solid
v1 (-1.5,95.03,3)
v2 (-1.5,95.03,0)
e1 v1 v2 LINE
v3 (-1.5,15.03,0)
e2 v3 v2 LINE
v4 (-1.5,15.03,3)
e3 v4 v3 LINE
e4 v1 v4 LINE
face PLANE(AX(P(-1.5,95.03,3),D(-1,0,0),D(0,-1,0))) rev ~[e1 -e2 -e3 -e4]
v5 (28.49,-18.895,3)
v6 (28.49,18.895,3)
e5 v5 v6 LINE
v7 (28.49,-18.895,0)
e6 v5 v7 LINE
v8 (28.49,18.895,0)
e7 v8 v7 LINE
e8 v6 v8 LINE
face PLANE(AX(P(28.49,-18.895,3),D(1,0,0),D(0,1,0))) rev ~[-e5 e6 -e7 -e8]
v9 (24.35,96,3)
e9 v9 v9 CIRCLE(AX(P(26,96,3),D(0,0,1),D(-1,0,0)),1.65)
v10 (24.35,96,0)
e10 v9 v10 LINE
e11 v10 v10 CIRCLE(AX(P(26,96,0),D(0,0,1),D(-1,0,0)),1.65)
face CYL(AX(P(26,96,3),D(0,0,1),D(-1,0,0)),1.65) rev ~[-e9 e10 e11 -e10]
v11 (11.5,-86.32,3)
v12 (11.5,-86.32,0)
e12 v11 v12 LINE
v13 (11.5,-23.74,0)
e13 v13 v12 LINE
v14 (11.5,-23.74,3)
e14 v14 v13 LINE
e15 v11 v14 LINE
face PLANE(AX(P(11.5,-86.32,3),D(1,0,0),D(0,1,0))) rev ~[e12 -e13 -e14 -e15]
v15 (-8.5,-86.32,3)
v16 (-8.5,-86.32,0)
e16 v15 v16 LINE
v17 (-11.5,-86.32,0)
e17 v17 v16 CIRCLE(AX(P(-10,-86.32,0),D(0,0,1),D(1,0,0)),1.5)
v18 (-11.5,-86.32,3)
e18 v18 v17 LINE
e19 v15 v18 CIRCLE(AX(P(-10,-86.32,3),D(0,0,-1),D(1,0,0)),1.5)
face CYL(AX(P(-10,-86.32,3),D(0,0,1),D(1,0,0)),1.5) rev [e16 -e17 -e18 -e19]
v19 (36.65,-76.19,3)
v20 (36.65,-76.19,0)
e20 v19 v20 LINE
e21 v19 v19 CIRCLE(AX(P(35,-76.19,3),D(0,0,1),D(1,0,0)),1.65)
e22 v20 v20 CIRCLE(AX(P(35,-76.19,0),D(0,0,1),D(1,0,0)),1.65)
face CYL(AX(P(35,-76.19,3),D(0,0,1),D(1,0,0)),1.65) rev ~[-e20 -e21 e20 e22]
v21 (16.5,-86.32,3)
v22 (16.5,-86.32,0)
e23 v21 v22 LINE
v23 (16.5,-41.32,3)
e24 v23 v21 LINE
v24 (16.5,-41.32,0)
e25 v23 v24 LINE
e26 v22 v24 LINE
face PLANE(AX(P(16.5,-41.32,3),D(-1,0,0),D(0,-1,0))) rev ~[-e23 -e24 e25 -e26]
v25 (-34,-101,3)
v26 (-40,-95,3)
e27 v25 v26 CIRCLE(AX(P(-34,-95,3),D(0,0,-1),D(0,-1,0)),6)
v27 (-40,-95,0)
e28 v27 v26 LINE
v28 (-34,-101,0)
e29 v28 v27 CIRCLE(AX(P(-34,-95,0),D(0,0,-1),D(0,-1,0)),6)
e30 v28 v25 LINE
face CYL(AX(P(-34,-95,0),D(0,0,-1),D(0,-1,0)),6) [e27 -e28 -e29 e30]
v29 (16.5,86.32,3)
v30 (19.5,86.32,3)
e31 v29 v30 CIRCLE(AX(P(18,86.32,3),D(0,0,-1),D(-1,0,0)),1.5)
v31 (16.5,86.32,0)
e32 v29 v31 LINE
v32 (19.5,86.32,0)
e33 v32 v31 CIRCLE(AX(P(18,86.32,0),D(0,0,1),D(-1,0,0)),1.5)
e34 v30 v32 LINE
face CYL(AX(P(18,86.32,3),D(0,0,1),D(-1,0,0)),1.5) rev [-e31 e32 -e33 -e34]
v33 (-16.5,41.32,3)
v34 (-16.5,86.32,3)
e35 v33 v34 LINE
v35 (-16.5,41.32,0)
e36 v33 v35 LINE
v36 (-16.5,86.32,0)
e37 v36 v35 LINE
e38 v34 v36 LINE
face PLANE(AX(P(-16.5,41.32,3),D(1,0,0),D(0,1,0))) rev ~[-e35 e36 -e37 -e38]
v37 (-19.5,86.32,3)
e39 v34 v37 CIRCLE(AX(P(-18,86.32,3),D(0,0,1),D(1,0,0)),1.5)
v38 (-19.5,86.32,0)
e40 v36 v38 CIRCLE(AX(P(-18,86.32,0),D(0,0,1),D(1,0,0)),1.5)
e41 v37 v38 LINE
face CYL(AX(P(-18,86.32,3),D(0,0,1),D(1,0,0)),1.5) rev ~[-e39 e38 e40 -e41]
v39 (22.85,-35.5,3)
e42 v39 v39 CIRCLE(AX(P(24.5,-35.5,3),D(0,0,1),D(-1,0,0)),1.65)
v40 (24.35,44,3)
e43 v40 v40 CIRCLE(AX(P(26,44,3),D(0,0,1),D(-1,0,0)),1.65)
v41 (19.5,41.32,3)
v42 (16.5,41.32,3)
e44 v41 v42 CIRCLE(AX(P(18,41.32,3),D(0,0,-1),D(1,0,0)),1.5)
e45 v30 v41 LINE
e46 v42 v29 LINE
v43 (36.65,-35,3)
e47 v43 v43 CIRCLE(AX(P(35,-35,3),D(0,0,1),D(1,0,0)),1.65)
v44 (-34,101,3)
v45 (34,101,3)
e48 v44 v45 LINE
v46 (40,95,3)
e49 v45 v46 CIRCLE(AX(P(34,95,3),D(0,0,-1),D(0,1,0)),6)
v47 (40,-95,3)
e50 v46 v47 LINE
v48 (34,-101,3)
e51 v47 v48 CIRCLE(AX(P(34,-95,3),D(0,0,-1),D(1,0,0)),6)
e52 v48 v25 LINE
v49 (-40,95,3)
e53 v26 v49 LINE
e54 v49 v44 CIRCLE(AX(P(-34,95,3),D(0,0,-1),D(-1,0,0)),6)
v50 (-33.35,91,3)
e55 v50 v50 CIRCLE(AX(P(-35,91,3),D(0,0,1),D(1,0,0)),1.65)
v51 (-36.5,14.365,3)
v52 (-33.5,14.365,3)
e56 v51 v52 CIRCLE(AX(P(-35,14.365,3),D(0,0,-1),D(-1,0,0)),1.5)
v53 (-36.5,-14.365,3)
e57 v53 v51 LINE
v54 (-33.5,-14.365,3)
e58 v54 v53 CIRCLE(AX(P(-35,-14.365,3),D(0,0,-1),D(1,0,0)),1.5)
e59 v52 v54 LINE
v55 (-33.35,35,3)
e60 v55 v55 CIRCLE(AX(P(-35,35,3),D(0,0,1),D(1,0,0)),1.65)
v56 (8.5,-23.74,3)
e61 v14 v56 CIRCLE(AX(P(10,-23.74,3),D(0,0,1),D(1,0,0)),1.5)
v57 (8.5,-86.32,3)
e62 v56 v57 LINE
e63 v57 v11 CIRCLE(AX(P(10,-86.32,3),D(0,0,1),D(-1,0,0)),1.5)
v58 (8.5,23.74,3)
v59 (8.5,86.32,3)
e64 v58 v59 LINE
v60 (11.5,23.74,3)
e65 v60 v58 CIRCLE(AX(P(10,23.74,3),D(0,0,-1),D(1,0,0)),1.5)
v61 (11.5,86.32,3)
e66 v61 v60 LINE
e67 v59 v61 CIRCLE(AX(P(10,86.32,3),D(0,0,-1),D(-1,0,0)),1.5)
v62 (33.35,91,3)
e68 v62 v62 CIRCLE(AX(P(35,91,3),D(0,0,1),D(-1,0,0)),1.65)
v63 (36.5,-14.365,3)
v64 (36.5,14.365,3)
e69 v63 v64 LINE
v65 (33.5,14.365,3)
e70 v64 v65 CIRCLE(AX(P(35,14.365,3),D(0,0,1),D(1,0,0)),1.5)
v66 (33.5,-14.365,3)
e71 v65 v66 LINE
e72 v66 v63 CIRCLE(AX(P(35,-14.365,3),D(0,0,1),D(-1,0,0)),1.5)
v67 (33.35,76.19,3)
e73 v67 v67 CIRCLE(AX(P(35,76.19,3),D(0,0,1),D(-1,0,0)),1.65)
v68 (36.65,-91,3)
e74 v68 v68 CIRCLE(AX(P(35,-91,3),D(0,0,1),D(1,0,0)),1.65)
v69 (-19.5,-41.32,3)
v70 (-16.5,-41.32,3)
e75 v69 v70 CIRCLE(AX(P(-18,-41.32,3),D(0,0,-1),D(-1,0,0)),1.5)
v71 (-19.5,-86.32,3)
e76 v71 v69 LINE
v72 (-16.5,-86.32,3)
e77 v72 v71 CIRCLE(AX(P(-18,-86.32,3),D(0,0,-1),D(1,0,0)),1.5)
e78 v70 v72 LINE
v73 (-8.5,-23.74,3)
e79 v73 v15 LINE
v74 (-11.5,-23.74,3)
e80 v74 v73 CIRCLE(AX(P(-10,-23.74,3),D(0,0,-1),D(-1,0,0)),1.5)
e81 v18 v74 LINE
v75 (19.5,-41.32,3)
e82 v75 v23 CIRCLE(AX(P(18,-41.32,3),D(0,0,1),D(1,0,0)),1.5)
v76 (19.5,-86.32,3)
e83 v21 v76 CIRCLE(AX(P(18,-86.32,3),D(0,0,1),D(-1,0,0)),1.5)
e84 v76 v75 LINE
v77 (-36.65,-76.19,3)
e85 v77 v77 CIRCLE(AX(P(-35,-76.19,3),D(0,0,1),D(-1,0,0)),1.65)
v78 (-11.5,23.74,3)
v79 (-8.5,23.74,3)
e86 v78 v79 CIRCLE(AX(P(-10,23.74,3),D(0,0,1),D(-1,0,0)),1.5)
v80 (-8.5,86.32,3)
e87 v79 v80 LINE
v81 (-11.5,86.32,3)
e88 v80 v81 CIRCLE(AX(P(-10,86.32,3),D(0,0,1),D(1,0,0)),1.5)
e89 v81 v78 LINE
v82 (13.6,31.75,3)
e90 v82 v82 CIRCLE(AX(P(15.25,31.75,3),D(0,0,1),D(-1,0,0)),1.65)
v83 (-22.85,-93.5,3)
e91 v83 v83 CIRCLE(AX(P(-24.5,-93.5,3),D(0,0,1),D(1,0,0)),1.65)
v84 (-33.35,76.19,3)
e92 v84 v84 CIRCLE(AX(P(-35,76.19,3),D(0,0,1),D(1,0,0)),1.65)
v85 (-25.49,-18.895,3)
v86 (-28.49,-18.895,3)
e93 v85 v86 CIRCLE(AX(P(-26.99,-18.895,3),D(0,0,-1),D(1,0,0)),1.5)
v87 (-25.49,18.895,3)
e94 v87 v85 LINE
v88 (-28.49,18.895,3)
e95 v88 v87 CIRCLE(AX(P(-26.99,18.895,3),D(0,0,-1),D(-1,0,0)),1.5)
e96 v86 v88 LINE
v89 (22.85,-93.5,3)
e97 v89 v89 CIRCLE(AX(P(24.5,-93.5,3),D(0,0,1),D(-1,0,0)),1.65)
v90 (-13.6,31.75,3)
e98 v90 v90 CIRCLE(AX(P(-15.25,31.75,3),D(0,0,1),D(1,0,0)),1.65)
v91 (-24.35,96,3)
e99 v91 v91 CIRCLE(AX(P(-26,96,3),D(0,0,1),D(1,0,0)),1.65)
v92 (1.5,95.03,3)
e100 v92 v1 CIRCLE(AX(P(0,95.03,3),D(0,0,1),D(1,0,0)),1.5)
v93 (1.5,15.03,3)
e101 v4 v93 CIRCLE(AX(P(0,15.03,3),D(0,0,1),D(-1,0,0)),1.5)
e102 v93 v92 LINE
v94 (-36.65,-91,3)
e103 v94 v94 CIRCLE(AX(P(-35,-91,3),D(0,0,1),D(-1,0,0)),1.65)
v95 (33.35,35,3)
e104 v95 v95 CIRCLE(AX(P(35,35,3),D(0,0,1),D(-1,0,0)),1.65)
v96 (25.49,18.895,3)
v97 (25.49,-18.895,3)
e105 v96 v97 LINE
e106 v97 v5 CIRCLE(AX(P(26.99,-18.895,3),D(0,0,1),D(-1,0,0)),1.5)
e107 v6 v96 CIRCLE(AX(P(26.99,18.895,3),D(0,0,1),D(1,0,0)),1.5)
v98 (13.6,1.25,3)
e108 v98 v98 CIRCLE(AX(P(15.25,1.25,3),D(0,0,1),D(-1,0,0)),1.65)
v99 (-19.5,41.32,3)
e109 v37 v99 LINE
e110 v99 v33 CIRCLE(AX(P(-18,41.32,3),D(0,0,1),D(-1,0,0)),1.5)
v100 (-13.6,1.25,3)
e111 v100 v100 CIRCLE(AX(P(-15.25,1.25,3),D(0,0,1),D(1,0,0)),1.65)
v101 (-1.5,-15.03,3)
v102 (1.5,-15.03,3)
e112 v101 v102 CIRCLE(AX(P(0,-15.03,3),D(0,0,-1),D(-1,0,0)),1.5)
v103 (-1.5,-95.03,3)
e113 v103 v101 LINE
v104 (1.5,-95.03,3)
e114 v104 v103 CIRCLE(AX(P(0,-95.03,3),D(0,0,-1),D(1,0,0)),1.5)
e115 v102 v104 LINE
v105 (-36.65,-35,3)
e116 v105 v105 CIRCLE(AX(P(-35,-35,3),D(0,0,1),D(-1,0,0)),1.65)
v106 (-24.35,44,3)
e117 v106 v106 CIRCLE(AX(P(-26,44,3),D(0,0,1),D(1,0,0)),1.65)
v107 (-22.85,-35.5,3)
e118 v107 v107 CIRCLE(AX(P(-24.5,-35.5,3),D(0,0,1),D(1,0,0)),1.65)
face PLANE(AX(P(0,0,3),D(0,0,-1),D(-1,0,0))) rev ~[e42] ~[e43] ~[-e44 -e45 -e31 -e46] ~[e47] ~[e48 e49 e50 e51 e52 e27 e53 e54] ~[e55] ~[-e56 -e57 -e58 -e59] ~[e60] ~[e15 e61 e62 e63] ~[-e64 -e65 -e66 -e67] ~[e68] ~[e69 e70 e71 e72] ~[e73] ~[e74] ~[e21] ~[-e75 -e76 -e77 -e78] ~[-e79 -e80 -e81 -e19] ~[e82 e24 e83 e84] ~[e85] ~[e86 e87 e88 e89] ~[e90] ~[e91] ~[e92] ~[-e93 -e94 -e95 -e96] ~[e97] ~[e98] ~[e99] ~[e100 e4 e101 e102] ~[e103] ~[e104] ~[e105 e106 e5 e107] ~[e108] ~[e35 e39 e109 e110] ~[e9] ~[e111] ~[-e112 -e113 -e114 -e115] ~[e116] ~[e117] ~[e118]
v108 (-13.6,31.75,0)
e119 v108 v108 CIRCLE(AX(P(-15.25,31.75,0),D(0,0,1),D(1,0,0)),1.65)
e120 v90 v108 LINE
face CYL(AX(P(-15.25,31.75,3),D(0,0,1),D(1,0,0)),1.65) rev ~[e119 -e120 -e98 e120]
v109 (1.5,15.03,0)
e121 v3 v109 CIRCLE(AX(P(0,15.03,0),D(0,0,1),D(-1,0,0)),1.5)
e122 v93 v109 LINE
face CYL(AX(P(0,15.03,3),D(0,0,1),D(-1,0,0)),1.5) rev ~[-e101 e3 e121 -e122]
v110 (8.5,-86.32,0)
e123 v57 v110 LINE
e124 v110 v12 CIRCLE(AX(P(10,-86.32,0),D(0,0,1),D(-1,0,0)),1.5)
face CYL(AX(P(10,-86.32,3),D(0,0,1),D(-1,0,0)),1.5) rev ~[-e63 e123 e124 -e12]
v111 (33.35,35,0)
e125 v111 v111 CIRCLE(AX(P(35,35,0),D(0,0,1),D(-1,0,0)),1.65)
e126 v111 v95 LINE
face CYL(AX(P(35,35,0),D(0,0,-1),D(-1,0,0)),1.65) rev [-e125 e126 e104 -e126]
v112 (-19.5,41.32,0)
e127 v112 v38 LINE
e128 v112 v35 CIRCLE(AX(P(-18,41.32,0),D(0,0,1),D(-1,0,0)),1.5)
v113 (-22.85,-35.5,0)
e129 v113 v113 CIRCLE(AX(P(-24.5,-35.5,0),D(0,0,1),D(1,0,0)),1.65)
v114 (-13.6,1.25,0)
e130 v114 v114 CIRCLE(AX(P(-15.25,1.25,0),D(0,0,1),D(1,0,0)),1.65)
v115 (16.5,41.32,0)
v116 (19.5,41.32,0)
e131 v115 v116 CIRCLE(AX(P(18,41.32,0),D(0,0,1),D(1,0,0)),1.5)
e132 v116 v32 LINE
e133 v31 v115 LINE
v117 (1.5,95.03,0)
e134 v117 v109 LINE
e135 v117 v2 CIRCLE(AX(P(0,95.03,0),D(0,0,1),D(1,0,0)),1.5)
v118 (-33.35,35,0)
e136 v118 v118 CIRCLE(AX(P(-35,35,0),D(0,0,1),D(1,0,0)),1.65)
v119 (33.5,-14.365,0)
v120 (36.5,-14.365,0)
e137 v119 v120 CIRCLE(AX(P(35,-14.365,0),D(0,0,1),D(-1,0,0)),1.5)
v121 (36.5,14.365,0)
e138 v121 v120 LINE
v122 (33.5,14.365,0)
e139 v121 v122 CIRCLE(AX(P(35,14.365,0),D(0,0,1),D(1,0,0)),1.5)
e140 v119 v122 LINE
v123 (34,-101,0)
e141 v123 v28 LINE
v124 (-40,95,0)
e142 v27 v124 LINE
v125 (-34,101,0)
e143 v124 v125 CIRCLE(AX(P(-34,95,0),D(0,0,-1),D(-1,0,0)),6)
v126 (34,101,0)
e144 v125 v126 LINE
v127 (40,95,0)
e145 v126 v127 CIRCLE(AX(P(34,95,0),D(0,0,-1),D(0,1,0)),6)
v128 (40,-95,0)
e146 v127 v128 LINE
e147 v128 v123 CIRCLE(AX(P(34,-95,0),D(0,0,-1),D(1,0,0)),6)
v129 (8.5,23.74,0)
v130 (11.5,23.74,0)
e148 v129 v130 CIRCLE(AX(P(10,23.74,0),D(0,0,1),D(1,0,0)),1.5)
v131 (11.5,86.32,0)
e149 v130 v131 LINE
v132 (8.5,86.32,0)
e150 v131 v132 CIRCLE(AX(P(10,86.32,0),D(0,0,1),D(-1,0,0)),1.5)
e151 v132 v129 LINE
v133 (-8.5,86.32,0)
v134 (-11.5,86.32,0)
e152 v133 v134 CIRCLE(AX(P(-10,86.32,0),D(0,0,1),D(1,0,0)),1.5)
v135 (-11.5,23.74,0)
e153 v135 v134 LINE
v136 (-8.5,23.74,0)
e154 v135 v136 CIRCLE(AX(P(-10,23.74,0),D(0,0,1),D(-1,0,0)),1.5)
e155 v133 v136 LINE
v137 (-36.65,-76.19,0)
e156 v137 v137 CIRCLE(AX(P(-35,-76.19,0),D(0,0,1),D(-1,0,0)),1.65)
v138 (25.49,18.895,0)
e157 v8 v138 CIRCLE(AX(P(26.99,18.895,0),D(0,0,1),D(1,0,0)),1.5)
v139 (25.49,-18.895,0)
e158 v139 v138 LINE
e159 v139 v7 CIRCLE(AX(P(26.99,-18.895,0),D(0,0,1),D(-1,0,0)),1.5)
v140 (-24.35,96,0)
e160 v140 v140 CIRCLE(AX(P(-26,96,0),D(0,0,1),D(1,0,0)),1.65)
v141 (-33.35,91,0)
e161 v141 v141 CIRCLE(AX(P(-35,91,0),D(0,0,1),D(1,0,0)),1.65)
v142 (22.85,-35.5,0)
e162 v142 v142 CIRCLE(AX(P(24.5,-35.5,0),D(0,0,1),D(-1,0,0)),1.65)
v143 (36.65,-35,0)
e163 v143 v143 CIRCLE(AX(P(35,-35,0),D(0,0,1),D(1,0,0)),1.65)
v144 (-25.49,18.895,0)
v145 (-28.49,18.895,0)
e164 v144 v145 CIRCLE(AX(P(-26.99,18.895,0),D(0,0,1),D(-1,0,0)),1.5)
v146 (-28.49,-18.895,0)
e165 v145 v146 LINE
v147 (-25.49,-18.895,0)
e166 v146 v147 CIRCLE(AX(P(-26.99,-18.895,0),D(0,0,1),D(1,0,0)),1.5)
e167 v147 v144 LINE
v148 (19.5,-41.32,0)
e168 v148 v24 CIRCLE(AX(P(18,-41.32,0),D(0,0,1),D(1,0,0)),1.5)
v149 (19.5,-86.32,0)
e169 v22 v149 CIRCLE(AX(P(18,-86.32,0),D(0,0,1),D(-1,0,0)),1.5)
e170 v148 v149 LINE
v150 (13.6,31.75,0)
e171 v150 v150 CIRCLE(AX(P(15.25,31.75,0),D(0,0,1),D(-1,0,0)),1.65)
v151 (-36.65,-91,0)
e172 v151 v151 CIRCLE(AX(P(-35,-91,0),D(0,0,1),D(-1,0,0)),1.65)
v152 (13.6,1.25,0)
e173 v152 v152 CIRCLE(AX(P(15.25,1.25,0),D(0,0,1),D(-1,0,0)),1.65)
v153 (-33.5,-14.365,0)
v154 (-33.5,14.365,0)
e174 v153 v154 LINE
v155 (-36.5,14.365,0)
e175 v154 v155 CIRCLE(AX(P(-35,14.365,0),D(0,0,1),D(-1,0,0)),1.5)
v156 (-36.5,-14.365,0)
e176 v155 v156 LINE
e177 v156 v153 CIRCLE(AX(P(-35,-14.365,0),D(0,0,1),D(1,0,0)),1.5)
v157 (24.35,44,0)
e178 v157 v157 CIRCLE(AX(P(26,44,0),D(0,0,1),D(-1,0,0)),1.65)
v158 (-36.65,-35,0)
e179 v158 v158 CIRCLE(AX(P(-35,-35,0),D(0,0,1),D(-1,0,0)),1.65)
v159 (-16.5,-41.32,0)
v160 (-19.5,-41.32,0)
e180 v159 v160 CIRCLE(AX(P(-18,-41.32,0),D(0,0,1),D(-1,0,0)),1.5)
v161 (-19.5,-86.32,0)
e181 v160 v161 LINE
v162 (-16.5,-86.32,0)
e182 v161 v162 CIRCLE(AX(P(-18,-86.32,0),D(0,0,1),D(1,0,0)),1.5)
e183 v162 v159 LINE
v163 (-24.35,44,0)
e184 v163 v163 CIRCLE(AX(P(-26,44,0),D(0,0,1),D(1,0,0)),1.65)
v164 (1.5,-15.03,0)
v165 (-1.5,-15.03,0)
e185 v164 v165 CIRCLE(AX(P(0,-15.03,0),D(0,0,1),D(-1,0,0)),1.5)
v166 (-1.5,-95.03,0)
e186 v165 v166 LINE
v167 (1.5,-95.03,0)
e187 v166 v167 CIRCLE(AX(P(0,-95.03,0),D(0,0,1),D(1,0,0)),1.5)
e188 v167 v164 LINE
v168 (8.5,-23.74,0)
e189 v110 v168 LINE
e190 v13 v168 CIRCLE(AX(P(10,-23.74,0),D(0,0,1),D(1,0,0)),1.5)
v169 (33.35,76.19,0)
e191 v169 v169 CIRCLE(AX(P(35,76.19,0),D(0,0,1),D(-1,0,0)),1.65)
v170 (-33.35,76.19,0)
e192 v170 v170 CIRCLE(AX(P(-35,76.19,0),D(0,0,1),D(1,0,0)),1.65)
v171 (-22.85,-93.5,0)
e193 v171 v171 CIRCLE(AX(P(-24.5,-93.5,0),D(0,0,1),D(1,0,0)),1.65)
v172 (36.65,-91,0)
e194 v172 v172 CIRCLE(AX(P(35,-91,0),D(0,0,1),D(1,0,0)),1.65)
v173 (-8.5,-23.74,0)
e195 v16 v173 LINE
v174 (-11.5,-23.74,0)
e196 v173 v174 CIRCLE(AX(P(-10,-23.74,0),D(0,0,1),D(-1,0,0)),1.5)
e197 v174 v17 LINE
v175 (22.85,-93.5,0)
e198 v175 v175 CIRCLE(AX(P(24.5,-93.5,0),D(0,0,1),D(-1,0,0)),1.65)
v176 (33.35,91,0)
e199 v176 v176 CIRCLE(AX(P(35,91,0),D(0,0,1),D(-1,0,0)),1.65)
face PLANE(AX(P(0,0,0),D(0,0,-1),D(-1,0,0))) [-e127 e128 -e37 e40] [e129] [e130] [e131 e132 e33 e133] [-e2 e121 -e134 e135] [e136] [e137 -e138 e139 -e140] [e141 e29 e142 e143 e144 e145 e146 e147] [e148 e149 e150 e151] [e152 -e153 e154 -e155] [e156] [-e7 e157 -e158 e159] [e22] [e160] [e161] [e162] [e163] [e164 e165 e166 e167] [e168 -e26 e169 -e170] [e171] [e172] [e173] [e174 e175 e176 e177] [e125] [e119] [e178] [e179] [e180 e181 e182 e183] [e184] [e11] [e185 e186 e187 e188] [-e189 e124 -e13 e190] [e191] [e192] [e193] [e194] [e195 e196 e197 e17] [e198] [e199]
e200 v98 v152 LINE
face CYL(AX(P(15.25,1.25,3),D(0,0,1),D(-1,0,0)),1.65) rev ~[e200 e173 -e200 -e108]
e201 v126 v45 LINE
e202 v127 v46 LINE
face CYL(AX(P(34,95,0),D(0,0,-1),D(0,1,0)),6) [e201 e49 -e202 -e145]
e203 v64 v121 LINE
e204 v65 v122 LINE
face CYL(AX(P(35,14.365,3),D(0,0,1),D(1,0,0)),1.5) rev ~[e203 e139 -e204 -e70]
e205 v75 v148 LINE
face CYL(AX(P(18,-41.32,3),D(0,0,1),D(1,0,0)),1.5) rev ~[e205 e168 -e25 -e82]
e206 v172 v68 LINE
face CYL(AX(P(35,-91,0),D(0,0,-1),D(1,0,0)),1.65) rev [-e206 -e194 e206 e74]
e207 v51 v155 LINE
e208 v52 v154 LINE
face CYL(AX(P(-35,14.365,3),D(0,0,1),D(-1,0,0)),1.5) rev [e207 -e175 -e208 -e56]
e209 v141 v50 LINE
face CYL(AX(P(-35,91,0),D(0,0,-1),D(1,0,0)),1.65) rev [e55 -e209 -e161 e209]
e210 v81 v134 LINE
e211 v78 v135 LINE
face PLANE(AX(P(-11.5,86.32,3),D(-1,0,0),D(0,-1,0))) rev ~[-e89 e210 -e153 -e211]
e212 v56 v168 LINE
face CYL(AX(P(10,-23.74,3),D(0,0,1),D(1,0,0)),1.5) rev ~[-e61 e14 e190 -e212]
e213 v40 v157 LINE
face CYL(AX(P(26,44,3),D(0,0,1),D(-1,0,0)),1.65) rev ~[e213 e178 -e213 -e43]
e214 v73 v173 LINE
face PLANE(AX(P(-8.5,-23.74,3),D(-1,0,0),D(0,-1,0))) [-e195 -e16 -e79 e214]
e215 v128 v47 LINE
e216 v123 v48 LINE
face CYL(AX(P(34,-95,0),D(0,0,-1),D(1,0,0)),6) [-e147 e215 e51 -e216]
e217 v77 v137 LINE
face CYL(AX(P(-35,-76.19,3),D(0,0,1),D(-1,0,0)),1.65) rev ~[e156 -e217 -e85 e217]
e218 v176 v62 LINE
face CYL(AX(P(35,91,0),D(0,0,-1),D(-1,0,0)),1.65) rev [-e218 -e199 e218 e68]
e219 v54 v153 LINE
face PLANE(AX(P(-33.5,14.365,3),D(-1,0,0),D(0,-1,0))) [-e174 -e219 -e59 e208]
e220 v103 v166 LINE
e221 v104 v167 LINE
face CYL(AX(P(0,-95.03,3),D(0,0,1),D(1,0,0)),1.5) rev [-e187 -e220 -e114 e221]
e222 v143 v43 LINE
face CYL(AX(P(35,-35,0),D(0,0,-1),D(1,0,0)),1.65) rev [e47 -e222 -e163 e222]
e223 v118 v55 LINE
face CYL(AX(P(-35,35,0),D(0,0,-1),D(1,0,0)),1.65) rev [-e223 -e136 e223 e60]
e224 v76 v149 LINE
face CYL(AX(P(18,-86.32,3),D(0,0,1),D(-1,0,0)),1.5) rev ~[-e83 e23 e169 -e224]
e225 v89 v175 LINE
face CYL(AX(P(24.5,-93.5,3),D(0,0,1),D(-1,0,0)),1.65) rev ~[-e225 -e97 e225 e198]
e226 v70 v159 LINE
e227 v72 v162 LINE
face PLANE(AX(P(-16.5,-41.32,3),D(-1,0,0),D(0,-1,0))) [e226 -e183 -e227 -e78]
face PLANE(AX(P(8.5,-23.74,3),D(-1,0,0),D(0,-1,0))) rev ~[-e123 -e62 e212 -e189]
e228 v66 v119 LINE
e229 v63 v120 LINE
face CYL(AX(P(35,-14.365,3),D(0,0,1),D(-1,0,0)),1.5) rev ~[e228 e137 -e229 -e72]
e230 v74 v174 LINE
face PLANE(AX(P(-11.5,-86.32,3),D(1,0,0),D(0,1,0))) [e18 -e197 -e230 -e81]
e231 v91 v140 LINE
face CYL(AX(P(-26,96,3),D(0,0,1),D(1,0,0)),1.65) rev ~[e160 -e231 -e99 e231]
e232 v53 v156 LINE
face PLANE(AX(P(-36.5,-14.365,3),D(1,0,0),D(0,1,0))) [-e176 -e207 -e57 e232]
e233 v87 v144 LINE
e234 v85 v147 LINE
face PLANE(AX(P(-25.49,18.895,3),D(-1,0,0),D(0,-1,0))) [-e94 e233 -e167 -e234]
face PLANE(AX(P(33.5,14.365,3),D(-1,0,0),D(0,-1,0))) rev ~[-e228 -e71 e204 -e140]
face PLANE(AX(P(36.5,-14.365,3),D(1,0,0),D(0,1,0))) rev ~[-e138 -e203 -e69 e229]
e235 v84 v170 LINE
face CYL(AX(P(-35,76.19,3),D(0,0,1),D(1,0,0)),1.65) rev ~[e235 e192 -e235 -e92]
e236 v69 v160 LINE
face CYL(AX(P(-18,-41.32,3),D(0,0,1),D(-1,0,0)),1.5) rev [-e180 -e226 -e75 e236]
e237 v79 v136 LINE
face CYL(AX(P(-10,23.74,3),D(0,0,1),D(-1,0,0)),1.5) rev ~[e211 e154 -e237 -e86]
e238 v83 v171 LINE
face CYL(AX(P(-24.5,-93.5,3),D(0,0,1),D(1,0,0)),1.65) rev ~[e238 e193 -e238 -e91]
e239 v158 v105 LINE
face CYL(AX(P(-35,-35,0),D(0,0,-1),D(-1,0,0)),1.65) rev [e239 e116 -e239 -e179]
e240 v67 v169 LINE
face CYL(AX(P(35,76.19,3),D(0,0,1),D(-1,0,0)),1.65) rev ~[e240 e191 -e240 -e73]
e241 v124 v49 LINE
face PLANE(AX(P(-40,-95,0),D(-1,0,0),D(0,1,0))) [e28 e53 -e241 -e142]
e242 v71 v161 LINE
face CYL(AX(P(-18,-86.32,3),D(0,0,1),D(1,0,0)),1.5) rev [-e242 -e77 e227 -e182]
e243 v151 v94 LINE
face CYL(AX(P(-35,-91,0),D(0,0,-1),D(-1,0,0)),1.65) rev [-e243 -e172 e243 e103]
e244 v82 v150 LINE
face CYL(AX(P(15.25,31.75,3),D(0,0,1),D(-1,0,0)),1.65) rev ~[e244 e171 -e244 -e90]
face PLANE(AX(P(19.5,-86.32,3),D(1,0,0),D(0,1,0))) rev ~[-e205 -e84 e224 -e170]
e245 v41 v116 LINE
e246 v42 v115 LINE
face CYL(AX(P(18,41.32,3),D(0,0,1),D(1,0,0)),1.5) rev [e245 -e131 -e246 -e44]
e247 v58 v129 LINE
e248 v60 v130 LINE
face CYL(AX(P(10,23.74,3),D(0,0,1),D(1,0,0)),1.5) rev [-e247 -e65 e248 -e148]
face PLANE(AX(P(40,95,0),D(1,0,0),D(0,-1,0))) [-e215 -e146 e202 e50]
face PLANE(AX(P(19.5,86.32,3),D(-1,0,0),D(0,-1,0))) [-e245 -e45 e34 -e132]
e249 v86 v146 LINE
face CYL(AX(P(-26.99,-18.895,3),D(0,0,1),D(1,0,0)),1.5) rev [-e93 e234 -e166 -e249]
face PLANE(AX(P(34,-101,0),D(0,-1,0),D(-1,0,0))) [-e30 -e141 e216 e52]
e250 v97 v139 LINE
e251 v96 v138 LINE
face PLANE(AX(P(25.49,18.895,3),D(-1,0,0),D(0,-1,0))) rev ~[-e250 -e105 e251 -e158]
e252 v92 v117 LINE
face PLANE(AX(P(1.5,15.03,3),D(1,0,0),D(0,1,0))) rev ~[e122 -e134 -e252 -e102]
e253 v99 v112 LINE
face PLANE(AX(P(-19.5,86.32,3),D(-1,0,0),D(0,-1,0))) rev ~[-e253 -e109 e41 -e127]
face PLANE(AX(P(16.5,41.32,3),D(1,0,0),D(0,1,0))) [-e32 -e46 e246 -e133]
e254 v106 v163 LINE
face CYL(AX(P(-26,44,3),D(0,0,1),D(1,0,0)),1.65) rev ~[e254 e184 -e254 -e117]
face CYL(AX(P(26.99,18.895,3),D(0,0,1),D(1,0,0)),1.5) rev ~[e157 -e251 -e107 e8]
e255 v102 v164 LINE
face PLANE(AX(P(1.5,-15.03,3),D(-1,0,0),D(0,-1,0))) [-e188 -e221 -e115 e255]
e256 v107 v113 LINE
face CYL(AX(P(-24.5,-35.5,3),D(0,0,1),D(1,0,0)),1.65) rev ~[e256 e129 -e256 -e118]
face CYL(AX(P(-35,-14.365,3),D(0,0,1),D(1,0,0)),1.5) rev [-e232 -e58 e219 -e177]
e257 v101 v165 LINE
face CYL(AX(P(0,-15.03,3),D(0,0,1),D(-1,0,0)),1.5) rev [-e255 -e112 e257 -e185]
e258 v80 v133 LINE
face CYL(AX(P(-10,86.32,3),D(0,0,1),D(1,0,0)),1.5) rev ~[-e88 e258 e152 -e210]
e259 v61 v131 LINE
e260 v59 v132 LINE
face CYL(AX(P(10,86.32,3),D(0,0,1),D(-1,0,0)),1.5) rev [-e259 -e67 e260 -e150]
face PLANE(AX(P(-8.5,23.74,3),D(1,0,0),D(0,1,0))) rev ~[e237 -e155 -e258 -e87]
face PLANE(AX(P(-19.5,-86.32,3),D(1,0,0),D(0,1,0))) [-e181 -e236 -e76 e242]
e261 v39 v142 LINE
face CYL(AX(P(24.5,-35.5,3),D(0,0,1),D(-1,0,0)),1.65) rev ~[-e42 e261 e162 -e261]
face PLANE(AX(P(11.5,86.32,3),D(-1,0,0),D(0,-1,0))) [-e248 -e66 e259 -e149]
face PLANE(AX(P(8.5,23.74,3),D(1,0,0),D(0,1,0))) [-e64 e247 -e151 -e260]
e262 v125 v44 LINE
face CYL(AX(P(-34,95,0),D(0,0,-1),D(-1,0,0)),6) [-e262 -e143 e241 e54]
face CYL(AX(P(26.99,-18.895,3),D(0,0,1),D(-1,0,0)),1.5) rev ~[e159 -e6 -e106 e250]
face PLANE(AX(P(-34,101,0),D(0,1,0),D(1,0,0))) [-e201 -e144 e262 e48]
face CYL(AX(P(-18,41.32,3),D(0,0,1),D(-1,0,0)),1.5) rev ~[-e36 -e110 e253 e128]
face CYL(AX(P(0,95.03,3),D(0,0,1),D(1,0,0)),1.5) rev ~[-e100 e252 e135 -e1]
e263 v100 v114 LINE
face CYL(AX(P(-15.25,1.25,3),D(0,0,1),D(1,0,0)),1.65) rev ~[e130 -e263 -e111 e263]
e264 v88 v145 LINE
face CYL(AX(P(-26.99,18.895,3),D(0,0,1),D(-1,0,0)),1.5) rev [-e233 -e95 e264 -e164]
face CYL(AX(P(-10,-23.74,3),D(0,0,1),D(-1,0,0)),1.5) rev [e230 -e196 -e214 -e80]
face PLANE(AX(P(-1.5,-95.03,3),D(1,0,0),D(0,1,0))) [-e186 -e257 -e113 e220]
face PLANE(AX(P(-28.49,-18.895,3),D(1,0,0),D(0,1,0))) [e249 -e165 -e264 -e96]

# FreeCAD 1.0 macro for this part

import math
import FreeCAD as App
import Part
import Sketcher
from FreeCAD import Vector
Q = App.Units.Quantity

doc = App.newDocument("Part")
params = doc.addObject("Spreadsheet::Sheet", "Params")
for row, (alias, value) in enumerate([
    ("sketch1_radius", "6 mm"),
    ("sketch1_diameter", "3.3 mm"),
    ("sketch1_width", "68 mm"),
    ("sketch1_height", "190 mm"),
    ("pad1_length", "3 mm"),
    ("sketch2_diameter", "3.3 mm"),
    ("sketch3_diameter", "3.3 mm"),
    ("sketch4_radius", "1.5 mm"),
    ("sketch4_height", "45 mm"),
    ("sketch4_height2", "80 mm"),
    ("sketch4_height3", "28.73 mm"),
    ("sketch4_height4", "37.79 mm"),
], start=1):
    params.set(f"A{row}", alias)
    params.set(f"B{row}", "=" + value)
    params.setAlias(f"B{row}", alias)

body = doc.addObject("PartDesign::Body", "Body")

sketch1 = body.newObject("Sketcher::SketchObject", "Sketch")
sketch1.AttachmentSupport = (doc.getObject("XY_Plane"), [""])
sketch1.MapMode = "FlatFace"
sketch1.addGeometry([
    Part.LineSegment(Vector(34, 101, 0), Vector(-34, 101, 0)),
    Part.ArcOfCircle(Part.Circle(Vector(-34, 95, 0), Vector(0, 0, 1), 6), math.radians(90), math.radians(180)),
    Part.LineSegment(Vector(-40, 95, 0), Vector(-40, -95, 0)),
    Part.ArcOfCircle(Part.Circle(Vector(-34, -95, 0), Vector(0, 0, 1), 6), math.radians(180), math.radians(270)),
    Part.LineSegment(Vector(-34, -101, 0), Vector(34, -101, 0)),
    Part.ArcOfCircle(Part.Circle(Vector(34, -95, 0), Vector(0, 0, 1), 6), math.radians(-90), math.radians(0)),
    Part.LineSegment(Vector(40, -95, 0), Vector(40, 95, 0)),
    Part.ArcOfCircle(Part.Circle(Vector(34, 95, 0), Vector(0, 0, 1), 6), math.radians(0), math.radians(90)),
    Part.Circle(Vector(35, -91, 0), Vector(0, 0, 1), 1.6),
    Part.Circle(Vector(35, -35, 0), Vector(0, 0, 1), 1.6),
    Part.Circle(Vector(-35, -91, 0), Vector(0, 0, 1), 1.6),
    Part.Circle(Vector(-35, -35, 0), Vector(0, 0, 1), 1.6),
    Part.Circle(Vector(35, 35, 0), Vector(0, 0, 1), 1.6),
    Part.Circle(Vector(35, 91, 0), Vector(0, 0, 1), 1.6),
    Part.Circle(Vector(-35, 35, 0), Vector(0, 0, 1), 1.6),
    Part.Circle(Vector(-35, 91, 0), Vector(0, 0, 1), 1.6),
], False)
sketch1.addConstraint([
    Sketcher.Constraint("Tangent", 0, 2, 1, 1),
    Sketcher.Constraint("Tangent", 1, 2, 2, 1),
    Sketcher.Constraint("Tangent", 2, 2, 3, 1),
    Sketcher.Constraint("Tangent", 3, 2, 4, 1),
    Sketcher.Constraint("Tangent", 4, 2, 5, 1),
    Sketcher.Constraint("Tangent", 5, 2, 6, 1),
    Sketcher.Constraint("Tangent", 6, 2, 7, 1),
    Sketcher.Constraint("Tangent", 7, 2, 0, 1),
    Sketcher.Constraint("Horizontal", 0),
    Sketcher.Constraint("Vertical", 2),
    Sketcher.Constraint("Horizontal", 4),
    Sketcher.Constraint("Vertical", 6),
    Sketcher.Constraint("Equal", 1, 3),
    Sketcher.Constraint("Equal", 3, 5),
    Sketcher.Constraint("Equal", 5, 7),
    Sketcher.Constraint("Equal", 8, 9),
    Sketcher.Constraint("Equal", 9, 10),
    Sketcher.Constraint("Equal", 10, 11),
    Sketcher.Constraint("Equal", 11, 12),
    Sketcher.Constraint("Equal", 12, 13),
    Sketcher.Constraint("Equal", 13, 14),
    Sketcher.Constraint("Equal", 14, 15),
    Sketcher.Constraint("Symmetric", 1, 3, 5, 3, -1, 1),
    Sketcher.Constraint("Symmetric", 11, 3, 12, 3, -1, 1),
    Sketcher.Constraint("Symmetric", 10, 3, 13, 3, -1, 1),
    Sketcher.Constraint("Symmetric", 9, 3, 14, 3, -1, 1),
    Sketcher.Constraint("Symmetric", 8, 3, 15, 3, -1, 1),
    Sketcher.Constraint("Symmetric", 8, 3, 10, 3, -2),
    Sketcher.Constraint("Symmetric", 9, 3, 11, 3, -2),
    Sketcher.Constraint("Vertical", 8, 3, 9, 3),
    Sketcher.Constraint("Radius", 1, Q("6 mm")),
    Sketcher.Constraint("Diameter", 8, Q("3.3 mm")),
    Sketcher.Constraint("DistanceX", 0, 2, 0, 1, Q("68 mm")),
    Sketcher.Constraint("DistanceY", 2, 2, 2, 1, Q("190 mm")),
    Sketcher.Constraint("DistanceX", -1, 1, 8, 3, Q("35 mm")),
    Sketcher.Constraint("DistanceY", 8, 3, -1, 1, Q("91 mm")),
    Sketcher.Constraint("DistanceY", 9, 3, -1, 1, Q("35 mm")),
])
sketch1.setExpression("Constraints[30]", "Params.sketch1_radius")
sketch1.setExpression("Constraints[31]", "Params.sketch1_diameter")
sketch1.setExpression("Constraints[32]", "Params.sketch1_width")
sketch1.setExpression("Constraints[33]", "Params.sketch1_height")
pad1 = body.newObject("PartDesign::Pad", "Pad")
pad1.Profile = sketch1
pad1.setExpression("Length", "Params.pad1_length")

sketch2 = body.newObject("Sketcher::SketchObject", "Sketch001")
sketch2.AttachmentSupport = (doc.getObject("XY_Plane"), [""])
sketch2.MapMode = "FlatFace"
sketch2.AttachmentOffset = App.Placement(Vector(0, 0, 3), App.Rotation())
sketch2.addGeometry([
    Part.Circle(Vector(-24.5, -93.5, 0), Vector(0, 0, 1), 1.6),
    Part.Circle(Vector(-24.5, -35.5, 0), Vector(0, 0, 1), 1.6),
    Part.Circle(Vector(-15.2, 1.2, 0), Vector(0, 0, 1), 1.6),
    Part.Circle(Vector(-15.2, 31.8, 0), Vector(0, 0, 1), 1.6),
    Part.Circle(Vector(-26, 44, 0), Vector(0, 0, 1), 1.6),
    Part.Circle(Vector(-26, 96, 0), Vector(0, 0, 1), 1.6),
    Part.Circle(Vector(24.5, -93.5, 0), Vector(0, 0, 1), 1.6),
    Part.Circle(Vector(24.5, -35.5, 0), Vector(0, 0, 1), 1.6),
    Part.Circle(Vector(15.2, 1.2, 0), Vector(0, 0, 1), 1.6),
    Part.Circle(Vector(15.2, 31.8, 0), Vector(0, 0, 1), 1.6),
    Part.Circle(Vector(26, 44, 0), Vector(0, 0, 1), 1.6),
    Part.Circle(Vector(26, 96, 0), Vector(0, 0, 1), 1.6),
], False)
sketch2.addConstraint([
    Sketcher.Constraint("Equal", 0, 1),
    Sketcher.Constraint("Equal", 1, 2),
    Sketcher.Constraint("Equal", 2, 3),
    Sketcher.Constraint("Equal", 3, 4),
    Sketcher.Constraint("Equal", 4, 5),
    Sketcher.Constraint("Equal", 5, 6),
    Sketcher.Constraint("Equal", 6, 7),
    Sketcher.Constraint("Equal", 7, 8),
    Sketcher.Constraint("Equal", 8, 9),
    Sketcher.Constraint("Equal", 9, 10),
    Sketcher.Constraint("Equal", 10, 11),
    Sketcher.Constraint("Symmetric", 0, 3, 6, 3, -2),
    Sketcher.Constraint("Symmetric", 1, 3, 7, 3, -2),
    Sketcher.Constraint("Symmetric", 2, 3, 8, 3, -2),
    Sketcher.Constraint("Symmetric", 3, 3, 9, 3, -2),
    Sketcher.Constraint("Symmetric", 4, 3, 10, 3, -2),
    Sketcher.Constraint("Symmetric", 5, 3, 11, 3, -2),
    Sketcher.Constraint("Vertical", 0, 3, 1, 3),
    Sketcher.Constraint("Vertical", 2, 3, 3, 3),
    Sketcher.Constraint("Vertical", 4, 3, 5, 3),
    Sketcher.Constraint("Diameter", 0, Q("3.3 mm")),
    Sketcher.Constraint("DistanceX", 4, 3, -1, 1, Q("26 mm")),
    Sketcher.Constraint("DistanceY", -1, 1, 4, 3, Q("44 mm")),
    Sketcher.Constraint("DistanceY", -1, 1, 5, 3, Q("96 mm")),
    Sketcher.Constraint("DistanceY", 0, 3, 1, 3, Q("58 mm")),
    Sketcher.Constraint("DistanceX", 0, 3, 6, 3, Q("49 mm")),
    Sketcher.Constraint("DistanceY", 0, 3, -1, 1, Q("93.5 mm")),
    Sketcher.Constraint("DistanceY", 2, 3, 3, 3, Q("30.5 mm")),
    Sketcher.Constraint("DistanceX", 2, 3, 8, 3, Q("30.5 mm")),
    Sketcher.Constraint("DistanceY", -1, 1, 2, 3, Q("1.25 mm")),
])
sketch2.setExpression("Constraints[20]", "Params.sketch2_diameter")
pocket1 = body.newObject("PartDesign::Pocket", "Pocket")
pocket1.Profile = sketch2
pocket1.Type = "ThroughAll"

sketch3 = body.newObject("Sketcher::SketchObject", "Sketch002")
sketch3.AttachmentSupport = (doc.getObject("XY_Plane"), [""])
sketch3.MapMode = "FlatFace"
sketch3.AttachmentOffset = App.Placement(Vector(0, 0, 3), App.Rotation())
sketch3.addGeometry([
    Part.Circle(Vector(-35, 76.2, 0), Vector(0, 0, 1), 1.6),
    Part.Circle(Vector(35, 76.2, 0), Vector(0, 0, 1), 1.6),
    Part.Circle(Vector(35, -76.2, 0), Vector(0, 0, 1), 1.6),
    Part.Circle(Vector(-35, -76.2, 0), Vector(0, 0, 1), 1.6),
], False)
sketch3.addConstraint([
    Sketcher.Constraint("Equal", 0, 1),
    Sketcher.Constraint("Equal", 1, 2),
    Sketcher.Constraint("Equal", 2, 3),
    Sketcher.Constraint("Symmetric", 0, 3, 2, 3, -1, 1),
    Sketcher.Constraint("Symmetric", 1, 3, 3, 3, -1, 1),
    Sketcher.Constraint("Symmetric", 0, 3, 1, 3, -2),
    Sketcher.Constraint("Diameter", 0, Q("3.3 mm")),
    Sketcher.Constraint("DistanceX", 0, 3, -1, 1, Q("35 mm")),
    Sketcher.Constraint("DistanceY", -1, 1, 0, 3, Q("76.19 mm")),
])
sketch3.setExpression("Constraints[6]", "Params.sketch3_diameter")
pocket2 = body.newObject("PartDesign::Pocket", "Pocket001")
pocket2.Profile = sketch3
pocket2.Type = "ThroughAll"

sketch4 = body.newObject("Sketcher::SketchObject", "Sketch003")
sketch4.AttachmentSupport = (doc.getObject("XY_Plane"), [""])
sketch4.MapMode = "FlatFace"
sketch4.AttachmentOffset = App.Placement(Vector(0, 0, 3), App.Rotation())
sketch4.addGeometry([
    Part.LineSegment(Vector(-33.5, -14.4, 0), Vector(-33.5, 14.4, 0)),
    Part.ArcOfCircle(Part.Circle(Vector(-35, 14.4, 0), Vector(0, 0, 1), 1.5), math.radians(0), math.radians(180)),
    Part.LineSegment(Vector(-36.5, 14.4, 0), Vector(-36.5, -14.4, 0)),
    Part.ArcOfCircle(Part.Circle(Vector(-35, -14.4, 0), Vector(0, 0, 1), 1.5), math.radians(180), math.radians(360)),
    Part.LineSegment(Vector(-25.5, -18.9, 0), Vector(-25.5, 18.9, 0)),
    Part.ArcOfCircle(Part.Circle(Vector(-27, 18.9, 0), Vector(0, 0, 1), 1.5), math.radians(0), math.radians(180)),
    Part.LineSegment(Vector(-28.5, 18.9, 0), Vector(-28.5, -18.9, 0)),
    Part.ArcOfCircle(Part.Circle(Vector(-27, -18.9, 0), Vector(0, 0, 1), 1.5), math.radians(180), math.radians(360)),
    Part.LineSegment(Vector(-16.5, -86.3, 0), Vector(-16.5, -41.3, 0)),
    Part.ArcOfCircle(Part.Circle(Vector(-18, -41.3, 0), Vector(0, 0, 1), 1.5), math.radians(0), math.radians(180)),
    Part.LineSegment(Vector(-19.5, -41.3, 0), Vector(-19.5, -86.3, 0)),
    Part.ArcOfCircle(Part.Circle(Vector(-18, -86.3, 0), Vector(0, 0, 1), 1.5), math.radians(180), math.radians(360)),
    Part.LineSegment(Vector(-8.5, -86.3, 0), Vector(-8.5, -23.7, 0)),
    Part.ArcOfCircle(Part.Circle(Vector(-10, -23.7, 0), Vector(0, 0, 1), 1.5), math.radians(0), math.radians(180)),
    Part.LineSegment(Vector(-11.5, -23.7, 0), Vector(-11.5, -86.3, 0)),
    Part.ArcOfCircle(Part.Circle(Vector(-10, -86.3, 0), Vector(0, 0, 1), 1.5), math.radians(180), math.radians(360)),
    Part.LineSegment(Vector(1.5, -95, 0), Vector(1.5, -15, 0)),
    Part.ArcOfCircle(Part.Circle(Vector(0, -15, 0), Vector(0, 0, 1), 1.5), math.radians(0), math.radians(180)),
    Part.LineSegment(Vector(-1.5, -15, 0), Vector(-1.5, -95, 0)),
    Part.ArcOfCircle(Part.Circle(Vector(0, -95, 0), Vector(0, 0, 1), 1.5), math.radians(180), math.radians(360)),
    Part.LineSegment(Vector(8.5, -23.7, 0), Vector(8.5, -86.3, 0)),
    Part.ArcOfCircle(Part.Circle(Vector(10, -86.3, 0), Vector(0, 0, 1), 1.5), math.radians(180), math.radians(360)),
    Part.LineSegment(Vector(11.5, -86.3, 0), Vector(11.5, -23.7, 0)),
    Part.ArcOfCircle(Part.Circle(Vector(10, -23.7, 0), Vector(0, 0, 1), 1.5), math.radians(0), math.radians(180)),
    Part.LineSegment(Vector(16.5, -41.3, 0), Vector(16.5, -86.3, 0)),
    Part.ArcOfCircle(Part.Circle(Vector(18, -86.3, 0), Vector(0, 0, 1), 1.5), math.radians(180), math.radians(360)),
    Part.LineSegment(Vector(19.5, -86.3, 0), Vector(19.5, -41.3, 0)),
    Part.ArcOfCircle(Part.Circle(Vector(18, -41.3, 0), Vector(0, 0, 1), 1.5), math.radians(0), math.radians(180)),
    Part.LineSegment(Vector(25.5, 18.9, 0), Vector(25.5, -18.9, 0)),
    Part.ArcOfCircle(Part.Circle(Vector(27, -18.9, 0), Vector(0, 0, 1), 1.5), math.radians(180), math.radians(360)),
    Part.LineSegment(Vector(28.5, -18.9, 0), Vector(28.5, 18.9, 0)),
    Part.ArcOfCircle(Part.Circle(Vector(27, 18.9, 0), Vector(0, 0, 1), 1.5), math.radians(0), math.radians(180)),
    Part.LineSegment(Vector(33.5, 14.4, 0), Vector(33.5, -14.4, 0)),
    Part.ArcOfCircle(Part.Circle(Vector(35, -14.4, 0), Vector(0, 0, 1), 1.5), math.radians(180), math.radians(360)),
    Part.LineSegment(Vector(36.5, -14.4, 0), Vector(36.5, 14.4, 0)),
    Part.ArcOfCircle(Part.Circle(Vector(35, 14.4, 0), Vector(0, 0, 1), 1.5), math.radians(0), math.radians(180)),
    Part.LineSegment(Vector(-16.5, 41.3, 0), Vector(-16.5, 86.3, 0)),
    Part.ArcOfCircle(Part.Circle(Vector(-18, 86.3, 0), Vector(0, 0, 1), 1.5), math.radians(0), math.radians(180)),
    Part.LineSegment(Vector(-19.5, 86.3, 0), Vector(-19.5, 41.3, 0)),
    Part.ArcOfCircle(Part.Circle(Vector(-18, 41.3, 0), Vector(0, 0, 1), 1.5), math.radians(180), math.radians(360)),
    Part.LineSegment(Vector(-8.5, 23.7, 0), Vector(-8.5, 86.3, 0)),
    Part.ArcOfCircle(Part.Circle(Vector(-10, 86.3, 0), Vector(0, 0, 1), 1.5), math.radians(0), math.radians(180)),
    Part.LineSegment(Vector(-11.5, 86.3, 0), Vector(-11.5, 23.7, 0)),
    Part.ArcOfCircle(Part.Circle(Vector(-10, 23.7, 0), Vector(0, 0, 1), 1.5), math.radians(180), math.radians(360)),
    Part.LineSegment(Vector(8.5, 86.3, 0), Vector(8.5, 23.7, 0)),
    Part.ArcOfCircle(Part.Circle(Vector(10, 23.7, 0), Vector(0, 0, 1), 1.5), math.radians(180), math.radians(360)),
    Part.LineSegment(Vector(11.5, 23.7, 0), Vector(11.5, 86.3, 0)),
    Part.ArcOfCircle(Part.Circle(Vector(10, 86.3, 0), Vector(0, 0, 1), 1.5), math.radians(0), math.radians(180)),
    Part.LineSegment(Vector(16.5, 86.3, 0), Vector(16.5, 41.3, 0)),
    Part.ArcOfCircle(Part.Circle(Vector(18, 41.3, 0), Vector(0, 0, 1), 1.5), math.radians(180), math.radians(360)),
    Part.LineSegment(Vector(19.5, 41.3, 0), Vector(19.5, 86.3, 0)),
    Part.ArcOfCircle(Part.Circle(Vector(18, 86.3, 0), Vector(0, 0, 1), 1.5), math.radians(0), math.radians(180)),
    Part.LineSegment(Vector(1.5, 15, 0), Vector(1.5, 95, 0)),
    Part.ArcOfCircle(Part.Circle(Vector(0, 95, 0), Vector(0, 0, 1), 1.5), math.radians(0), math.radians(180)),
    Part.LineSegment(Vector(-1.5, 95, 0), Vector(-1.5, 15, 0)),
    Part.ArcOfCircle(Part.Circle(Vector(0, 15, 0), Vector(0, 0, 1), 1.5), math.radians(180), math.radians(360)),
], False)
sketch4.addConstraint([
    Sketcher.Constraint("Tangent", 0, 2, 1, 1),
    Sketcher.Constraint("Tangent", 1, 2, 2, 1),
    Sketcher.Constraint("Tangent", 2, 2, 3, 1),
    Sketcher.Constraint("Tangent", 3, 2, 0, 1),
    Sketcher.Constraint("Tangent", 4, 2, 5, 1),
    Sketcher.Constraint("Tangent", 5, 2, 6, 1),
    Sketcher.Constraint("Tangent", 6, 2, 7, 1),
    Sketcher.Constraint("Tangent", 7, 2, 4, 1),
    Sketcher.Constraint("Tangent", 8, 2, 9, 1),
    Sketcher.Constraint("Tangent", 9, 2, 10, 1),
    Sketcher.Constraint("Tangent", 10, 2, 11, 1),
    Sketcher.Constraint("Tangent", 11, 2, 8, 1),
    Sketcher.Constraint("Tangent", 12, 2, 13, 1),
    Sketcher.Constraint("Tangent", 13, 2, 14, 1),
    Sketcher.Constraint("Tangent", 14, 2, 15, 1),
    Sketcher.Constraint("Tangent", 15, 2, 12, 1),
    Sketcher.Constraint("Tangent", 16, 2, 17, 1),
    Sketcher.Constraint("Tangent", 17, 2, 18, 1),
    Sketcher.Constraint("Tangent", 18, 2, 19, 1),
    Sketcher.Constraint("Tangent", 19, 2, 16, 1),
    Sketcher.Constraint("Tangent", 20, 2, 21, 1),
    Sketcher.Constraint("Tangent", 21, 2, 22, 1),
    Sketcher.Constraint("Tangent", 22, 2, 23, 1),
    Sketcher.Constraint("Tangent", 23, 2, 20, 1),
    Sketcher.Constraint("Tangent", 24, 2, 25, 1),
    Sketcher.Constraint("Tangent", 25, 2, 26, 1),
    Sketcher.Constraint("Tangent", 26, 2, 27, 1),
    Sketcher.Constraint("Tangent", 27, 2, 24, 1),
    Sketcher.Constraint("Tangent", 28, 2, 29, 1),
    Sketcher.Constraint("Tangent", 29, 2, 30, 1),
    Sketcher.Constraint("Tangent", 30, 2, 31, 1),
    Sketcher.Constraint("Tangent", 31, 2, 28, 1),
    Sketcher.Constraint("Tangent", 32, 2, 33, 1),
    Sketcher.Constraint("Tangent", 33, 2, 34, 1),
    Sketcher.Constraint("Tangent", 34, 2, 35, 1),
    Sketcher.Constraint("Tangent", 35, 2, 32, 1),
    Sketcher.Constraint("Tangent", 36, 2, 37, 1),
    Sketcher.Constraint("Tangent", 37, 2, 38, 1),
    Sketcher.Constraint("Tangent", 38, 2, 39, 1),
    Sketcher.Constraint("Tangent", 39, 2, 36, 1),
    Sketcher.Constraint("Tangent", 40, 2, 41, 1),
    Sketcher.Constraint("Tangent", 41, 2, 42, 1),
    Sketcher.Constraint("Tangent", 42, 2, 43, 1),
    Sketcher.Constraint("Tangent", 43, 2, 40, 1),
    Sketcher.Constraint("Tangent", 44, 2, 45, 1),
    Sketcher.Constraint("Tangent", 45, 2, 46, 1),
    Sketcher.Constraint("Tangent", 46, 2, 47, 1),
    Sketcher.Constraint("Tangent", 47, 2, 44, 1),
    Sketcher.Constraint("Tangent", 48, 2, 49, 1),
    Sketcher.Constraint("Tangent", 49, 2, 50, 1),
    Sketcher.Constraint("Tangent", 50, 2, 51, 1),
    Sketcher.Constraint("Tangent", 51, 2, 48, 1),
    Sketcher.Constraint("Tangent", 52, 2, 53, 1),
    Sketcher.Constraint("Tangent", 53, 2, 54, 1),
    Sketcher.Constraint("Tangent", 54, 2, 55, 1),
    Sketcher.Constraint("Tangent", 55, 2, 52, 1),
    Sketcher.Constraint("Vertical", 0),
    Sketcher.Constraint("Vertical", 2),
    Sketcher.Constraint("Vertical", 4),
    Sketcher.Constraint("Vertical", 6),
    Sketcher.Constraint("Vertical", 8),
    Sketcher.Constraint("Vertical", 10),
    Sketcher.Constraint("Vertical", 12),
    Sketcher.Constraint("Vertical", 14),
    Sketcher.Constraint("Vertical", 16),
    Sketcher.Constraint("Vertical", 18),
    Sketcher.Constraint("Vertical", 20),
    Sketcher.Constraint("Vertical", 22),
    Sketcher.Constraint("Vertical", 24),
    Sketcher.Constraint("Vertical", 26),
    Sketcher.Constraint("Vertical", 28),
    Sketcher.Constraint("Vertical", 30),
    Sketcher.Constraint("Vertical", 32),
    Sketcher.Constraint("Vertical", 34),
    Sketcher.Constraint("Vertical", 36),
    Sketcher.Constraint("Vertical", 38),
    Sketcher.Constraint("Vertical", 40),
    Sketcher.Constraint("Vertical", 42),
    Sketcher.Constraint("Vertical", 44),
    Sketcher.Constraint("Vertical", 46),
    Sketcher.Constraint("Vertical", 48),
    Sketcher.Constraint("Vertical", 50),
    Sketcher.Constraint("Vertical", 52),
    Sketcher.Constraint("Vertical", 54),
    Sketcher.Constraint("Equal", 3, 5),
    Sketcher.Constraint("Equal", 7, 9),
    Sketcher.Constraint("Equal", 11, 13),
    Sketcher.Constraint("Equal", 15, 17),
    Sketcher.Constraint("Equal", 19, 21),
    Sketcher.Constraint("Equal", 23, 25),
    Sketcher.Constraint("Equal", 27, 29),
    Sketcher.Constraint("Equal", 31, 33),
    Sketcher.Constraint("Equal", 35, 37),
    Sketcher.Constraint("Equal", 39, 41),
    Sketcher.Constraint("Equal", 43, 45),
    Sketcher.Constraint("Equal", 47, 49),
    Sketcher.Constraint("Equal", 51, 53),
    Sketcher.Constraint("Symmetric", 5, 3, 29, 3, -1, 1),
    Sketcher.Constraint("Symmetric", 1, 3, 33, 3, -1, 1),
    Sketcher.Constraint("Symmetric", 25, 3, 37, 3, -1, 1),
    Sketcher.Constraint("Symmetric", 21, 3, 41, 3, -1, 1),
    Sketcher.Constraint("Symmetric", 13, 3, 45, 3, -1, 1),
    Sketcher.Constraint("Symmetric", 9, 3, 49, 3, -1, 1),
    Sketcher.Constraint("Symmetric", 19, 3, 53, 3, -1, 1),
    Sketcher.Constraint("Symmetric", 15, 3, 21, 3, -2),
    Sketcher.Constraint("Symmetric", 11, 3, 25, 3, -2),
    Sketcher.Constraint("Symmetric", 17, 3, 55, 3, -1),
    Sketcher.Constraint("Horizontal", 11, 3, 15, 3),
    Sketcher.Constraint("Horizontal", 13, 3, 23, 3),
    Sketcher.Constraint("Horizontal", 9, 3, 27, 3),
    Sketcher.Constraint("Horizontal", 7, 3, 29, 3),
    Sketcher.Constraint("Horizontal", 5, 3, 31, 3),
    Sketcher.Constraint("Horizontal", 3, 3, 33, 3),
    Sketcher.Constraint("Horizontal", 1, 3, 35, 3),
    Sketcher.Constraint("Horizontal", 43, 3, 45, 3),
    Sketcher.Constraint("Horizontal", 41, 3, 47, 3),
    Sketcher.Constraint("Horizontal", 39, 3, 49, 3),
    Sketcher.Constraint("Horizontal", 47, 3, 51, 3),
    Sketcher.Constraint("Radius", 1, Q("1.5 mm")),
    Sketcher.Constraint("DistanceY", 8, 1, 8, 2, Q("45 mm")),
    Sketcher.Constraint("DistanceY", 16, 1, 16, 2, Q("80 mm")),
    Sketcher.Constraint("DistanceX", 1, 3, -1, 1, Q("35 mm")),
    Sketcher.Constraint("DistanceX", 9, 3, -1, 1, Q("18 mm")),
    Sketcher.Constraint("DistanceX", 13, 3, -1, 1, Q("10 mm")),
    Sketcher.Constraint("DistanceY", 0, 1, 0, 2, Q("28.73 mm")),
    Sketcher.Constraint("DistanceY", 4, 1, 4, 2, Q("37.79 mm")),
    Sketcher.Constraint("DistanceY", 12, 1, 12, 2, Q("62.58 mm")),
    Sketcher.Constraint("DistanceX", 5, 3, -1, 1, Q("26.99 mm")),
    Sketcher.Constraint("DistanceY", 9, 3, -1, 1, Q("41.32 mm")),
    Sketcher.Constraint("DistanceY", 17, 3, -1, 1, Q("15.03 mm")),
])
sketch4.setExpression("Constraints[118]", "Params.sketch4_radius")
sketch4.setExpression("Constraints[119]", "Params.sketch4_height")
sketch4.setExpression("Constraints[120]", "Params.sketch4_height2")
sketch4.setExpression("Constraints[124]", "Params.sketch4_height3")
sketch4.setExpression("Constraints[125]", "Params.sketch4_height4")
pocket3 = body.newObject("PartDesign::Pocket", "Pocket002")
pocket3.Profile = sketch4
pocket3.Type = "ThroughAll"

doc.recompute()
